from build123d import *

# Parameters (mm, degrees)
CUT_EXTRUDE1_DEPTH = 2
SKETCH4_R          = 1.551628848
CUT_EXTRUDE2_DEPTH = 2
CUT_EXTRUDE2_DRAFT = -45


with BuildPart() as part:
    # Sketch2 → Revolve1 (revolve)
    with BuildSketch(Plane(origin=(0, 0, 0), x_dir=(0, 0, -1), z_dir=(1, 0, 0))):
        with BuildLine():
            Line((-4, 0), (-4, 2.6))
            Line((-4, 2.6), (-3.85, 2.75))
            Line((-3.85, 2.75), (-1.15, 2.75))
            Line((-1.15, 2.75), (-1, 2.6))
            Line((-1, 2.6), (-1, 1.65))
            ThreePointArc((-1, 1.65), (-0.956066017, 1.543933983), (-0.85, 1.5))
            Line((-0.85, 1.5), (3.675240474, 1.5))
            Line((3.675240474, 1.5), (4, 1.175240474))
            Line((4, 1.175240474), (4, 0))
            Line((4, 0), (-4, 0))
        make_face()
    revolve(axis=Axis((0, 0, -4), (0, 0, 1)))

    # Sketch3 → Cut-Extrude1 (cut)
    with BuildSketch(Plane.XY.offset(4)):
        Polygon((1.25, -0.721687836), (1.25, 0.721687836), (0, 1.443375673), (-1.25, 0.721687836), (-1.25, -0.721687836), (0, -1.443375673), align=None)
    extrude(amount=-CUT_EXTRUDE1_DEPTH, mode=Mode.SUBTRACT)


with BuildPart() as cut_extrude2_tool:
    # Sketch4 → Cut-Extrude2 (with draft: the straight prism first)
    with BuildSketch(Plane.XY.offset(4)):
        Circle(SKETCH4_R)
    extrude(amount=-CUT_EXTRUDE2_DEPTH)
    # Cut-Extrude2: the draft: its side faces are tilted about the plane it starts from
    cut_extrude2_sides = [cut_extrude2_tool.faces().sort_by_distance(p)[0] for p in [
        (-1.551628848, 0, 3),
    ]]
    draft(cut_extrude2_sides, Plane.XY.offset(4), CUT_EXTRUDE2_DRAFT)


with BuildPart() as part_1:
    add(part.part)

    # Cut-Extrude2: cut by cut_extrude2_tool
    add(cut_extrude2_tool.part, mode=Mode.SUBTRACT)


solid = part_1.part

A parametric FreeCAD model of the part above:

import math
import FreeCAD as App
import Part
import Sketcher
from FreeCAD import Vector
Q = App.Units.Quantity


def faces_at(feature, points):
    """Names of the faces that lie closest to the given points."""
    faces = feature.Shape.Faces
    near = lambda p: min(range(len(faces)), key=lambda i: faces[i].distToShape(Part.Vertex(*p))[0])
    return sorted({f"Face{near(p) + 1}" for p in points})

doc = App.newDocument("Part")
body = doc.addObject("PartDesign::Body", "Body")

# Sketch on YZ plane
sketch1 = body.newObject("Sketcher::SketchObject", "Sketch")
sketch1.AttachmentSupport = (doc.getObject("YZ_Plane"), [""])
sketch1.MapMode = "FlatFace"
sketch1.addGeometry(Part.LineSegment(Vector(2.6, 4, 0), Vector(0, 4, 0)), False)
sketch1.addGeometry(Part.LineSegment(Vector(0, 4, 0), Vector(0, -4, 0)), False)
sketch1.addGeometry(Part.LineSegment(Vector(0, -4, 0), Vector(1.18, -4, 0)), False)
sketch1.addGeometry(Part.LineSegment(Vector(1.18, -4, 0), Vector(1.5, -3.68, 0)), False)
sketch1.addGeometry(Part.LineSegment(Vector(1.5, -3.68, 0), Vector(1.5, 0.85, 0)), False)
sketch1.addGeometry(Part.ArcOfCircle(Part.Circle(Vector(1.65, 0.85, 0), Vector(0, 0, 1), 0.15), math.radians(90), math.radians(180)), False)
sketch1.addGeometry(Part.LineSegment(Vector(1.65, 1, 0), Vector(2.6, 1, 0)), False)
sketch1.addGeometry(Part.LineSegment(Vector(2.6, 1, 0), Vector(2.75, 1.15, 0)), False)
sketch1.addGeometry(Part.LineSegment(Vector(2.75, 1.15, 0), Vector(2.75, 3.85, 0)), False)
sketch1.addGeometry(Part.LineSegment(Vector(2.75, 3.85, 0), Vector(2.6, 4, 0)), False)
sketch1.addConstraint(Sketcher.Constraint("Coincident", 0, 2, 1, 1))
sketch1.addConstraint(Sketcher.Constraint("Coincident", 1, 2, 2, 1))
sketch1.addConstraint(Sketcher.Constraint("Coincident", 2, 2, 3, 1))
sketch1.addConstraint(Sketcher.Constraint("Coincident", 3, 2, 4, 1))
sketch1.addConstraint(Sketcher.Constraint("Tangent", 4, 2, 5, 2))
sketch1.addConstraint(Sketcher.Constraint("Tangent", 5, 1, 6, 1))
sketch1.addConstraint(Sketcher.Constraint("Coincident", 6, 2, 7, 1))
sketch1.addConstraint(Sketcher.Constraint("Coincident", 7, 2, 8, 1))
sketch1.addConstraint(Sketcher.Constraint("Coincident", 8, 2, 9, 1))
sketch1.addConstraint(Sketcher.Constraint("Coincident", 9, 2, 0, 1))
sketch1.addConstraint(Sketcher.Constraint("Horizontal", 0))
sketch1.addConstraint(Sketcher.Constraint("Vertical", 1))
sketch1.addConstraint(Sketcher.Constraint("Horizontal", 2))
sketch1.addConstraint(Sketcher.Constraint("Vertical", 4))
sketch1.addConstraint(Sketcher.Constraint("Horizontal", 6))
sketch1.addConstraint(Sketcher.Constraint("Vertical", 8))
sketch1.addConstraint(Sketcher.Constraint("Symmetric", 0, 2, 1, 2, -1, 1))
sketch1.addConstraint(Sketcher.Constraint("Parallel", 3, 7))
sketch1.addConstraint(Sketcher.Constraint("Perpendicular", 7, 9))
sketch1.addConstraint(Sketcher.Constraint("Vertical", 6, 2, 9, 2))
sketch1.addConstraint(Sketcher.Constraint("Equal", 7, 9))
sketch1.addConstraint(Sketcher.Constraint("DistanceY", 1, 2, 1, 1, 8.0))
sketch1.addConstraint(Sketcher.Constraint("Radius", 5, 0.15))
sketch1.addConstraint(Sketcher.Constraint("DistanceX", 0, 2, 0, 1, 2.6))
sketch1.addConstraint(Sketcher.Constraint("DistanceY", 8, 1, 8, 2, 2.7))
sketch1.addConstraint(Sketcher.Constraint("DistanceY", -1, 1, 5, 1, 1.0))
sketch1.addConstraint(Sketcher.Constraint("DistanceX", 6, 1, 6, 2, 0.95))
sketch1.addConstraint(Sketcher.Constraint("DistanceX", 2, 1, 2, 2, 1.17524))
revolution = body.newObject("PartDesign::Revolution", "Revolution")
revolution.Profile = sketch1
revolution.ReferenceAxis = (sketch1, ["V_Axis"])
revolution.Angle = 360

# Sketch on XY plane
sketch2 = body.newObject("Sketcher::SketchObject", "Sketch001")
sketch2.AttachmentSupport = (doc.getObject("XY_Plane"), [""])
sketch2.MapMode = "FlatFace"
sketch2.AttachmentOffset = App.Placement(Vector(0, 0, 4), App.Rotation())
sketch2.addGeometry(Part.LineSegment(Vector(1.2, -0.7, 0), Vector(1.2, 0.7, 0)), False)
sketch2.addGeometry(Part.LineSegment(Vector(1.2, 0.7, 0), Vector(0, 1.4, 0)), False)
sketch2.addGeometry(Part.LineSegment(Vector(0, 1.4, 0), Vector(-1.2, 0.7, 0)), False)
sketch2.addGeometry(Part.LineSegment(Vector(-1.2, 0.7, 0), Vector(-1.2, -0.7, 0)), False)
sketch2.addGeometry(Part.LineSegment(Vector(-1.2, -0.7, 0), Vector(0, -1.4, 0)), False)
sketch2.addGeometry(Part.LineSegment(Vector(0, -1.4, 0), Vector(1.2, -0.7, 0)), False)
sketch2.addConstraint(Sketcher.Constraint("Coincident", 0, 2, 1, 1))
sketch2.addConstraint(Sketcher.Constraint("Coincident", 1, 2, 2, 1))
sketch2.addConstraint(Sketcher.Constraint("Coincident", 2, 2, 3, 1))
sketch2.addConstraint(Sketcher.Constraint("Coincident", 3, 2, 4, 1))
sketch2.addConstraint(Sketcher.Constraint("Coincident", 4, 2, 5, 1))
sketch2.addConstraint(Sketcher.Constraint("Coincident", 5, 2, 0, 1))
sketch2.addConstraint(Sketcher.Constraint("Vertical", 0))
sketch2.addConstraint(Sketcher.Constraint("Vertical", 3))
sketch2.addConstraint(Sketcher.Constraint("Symmetric", 0, 2, 3, 2, -1, 1))
sketch2.addConstraint(Sketcher.Constraint("Symmetric", 1, 2, 4, 2, -1, 1))
sketch2.addConstraint(Sketcher.Constraint("PointOnObject", 1, 2, -2))
sketch2.addConstraint(Sketcher.Constraint("Parallel", 2, 5))
sketch2.addConstraint(Sketcher.Constraint("Horizontal", 0, 2, 2, 2))
sketch2.addConstraint(Sketcher.Constraint("Angle", 1, Q("150 deg")))
sketch2.addConstraint(Sketcher.Constraint("DistanceX", 2, 2, 0, 2, 2.5))
sketch2.addConstraint(Sketcher.Constraint("DistanceY", 0, 1, 0, 2, 1.443376))
pocket1 = body.newObject("PartDesign::Pocket", "Pocket")
pocket1.Profile = sketch2
pocket1.Length = 2
body2 = doc.addObject("PartDesign::Body", "Body001")

# Sketch on XY plane
sketch3 = body2.newObject("Sketcher::SketchObject", "Sketch002")
sketch3.AttachmentSupport = (doc.getObject("XY_Plane001"), [""])
sketch3.MapMode = "FlatFace"
sketch3.AttachmentOffset = App.Placement(Vector(0, 0, 4), App.Rotation())
sketch3.addGeometry(Part.Circle(Vector(0, 0, 0), Vector(0, 0, 1), 1.6), False)
sketch3.addConstraint(Sketcher.Constraint("Coincident", 0, 3, -1, 1))
sketch3.addConstraint(Sketcher.Constraint("Diameter", 0, 3.103258))
pad1 = body2.newObject("PartDesign::Pad", "Pad")
pad1.Profile = sketch3
pad1.Length = 2
pad1.Reversed = True
doc.recompute()

datumplane = body2.newObject("PartDesign::Plane", "DatumPlane")
datumplane.AttachmentSupport = (doc.getObject("XY_Plane001"), [""])
datumplane.MapMode = "FlatFace"
datumplane.AttachmentOffset = App.Placement(Vector(0, 0, 4), App.Rotation())
draft = body2.newObject("PartDesign::Draft", "Draft")
draft.Base = (pad1, faces_at(pad1, [(-1.552, 0, 3)]))
draft.NeutralPlane = (datumplane, [""])
draft.Angle = 45
draft.Reversed = True
doc.recompute()

boolean = body.newObject("PartDesign::Boolean", "Boolean")
boolean.Type = "Cut"
boolean.addObjects([body2])

doc.recompute()
